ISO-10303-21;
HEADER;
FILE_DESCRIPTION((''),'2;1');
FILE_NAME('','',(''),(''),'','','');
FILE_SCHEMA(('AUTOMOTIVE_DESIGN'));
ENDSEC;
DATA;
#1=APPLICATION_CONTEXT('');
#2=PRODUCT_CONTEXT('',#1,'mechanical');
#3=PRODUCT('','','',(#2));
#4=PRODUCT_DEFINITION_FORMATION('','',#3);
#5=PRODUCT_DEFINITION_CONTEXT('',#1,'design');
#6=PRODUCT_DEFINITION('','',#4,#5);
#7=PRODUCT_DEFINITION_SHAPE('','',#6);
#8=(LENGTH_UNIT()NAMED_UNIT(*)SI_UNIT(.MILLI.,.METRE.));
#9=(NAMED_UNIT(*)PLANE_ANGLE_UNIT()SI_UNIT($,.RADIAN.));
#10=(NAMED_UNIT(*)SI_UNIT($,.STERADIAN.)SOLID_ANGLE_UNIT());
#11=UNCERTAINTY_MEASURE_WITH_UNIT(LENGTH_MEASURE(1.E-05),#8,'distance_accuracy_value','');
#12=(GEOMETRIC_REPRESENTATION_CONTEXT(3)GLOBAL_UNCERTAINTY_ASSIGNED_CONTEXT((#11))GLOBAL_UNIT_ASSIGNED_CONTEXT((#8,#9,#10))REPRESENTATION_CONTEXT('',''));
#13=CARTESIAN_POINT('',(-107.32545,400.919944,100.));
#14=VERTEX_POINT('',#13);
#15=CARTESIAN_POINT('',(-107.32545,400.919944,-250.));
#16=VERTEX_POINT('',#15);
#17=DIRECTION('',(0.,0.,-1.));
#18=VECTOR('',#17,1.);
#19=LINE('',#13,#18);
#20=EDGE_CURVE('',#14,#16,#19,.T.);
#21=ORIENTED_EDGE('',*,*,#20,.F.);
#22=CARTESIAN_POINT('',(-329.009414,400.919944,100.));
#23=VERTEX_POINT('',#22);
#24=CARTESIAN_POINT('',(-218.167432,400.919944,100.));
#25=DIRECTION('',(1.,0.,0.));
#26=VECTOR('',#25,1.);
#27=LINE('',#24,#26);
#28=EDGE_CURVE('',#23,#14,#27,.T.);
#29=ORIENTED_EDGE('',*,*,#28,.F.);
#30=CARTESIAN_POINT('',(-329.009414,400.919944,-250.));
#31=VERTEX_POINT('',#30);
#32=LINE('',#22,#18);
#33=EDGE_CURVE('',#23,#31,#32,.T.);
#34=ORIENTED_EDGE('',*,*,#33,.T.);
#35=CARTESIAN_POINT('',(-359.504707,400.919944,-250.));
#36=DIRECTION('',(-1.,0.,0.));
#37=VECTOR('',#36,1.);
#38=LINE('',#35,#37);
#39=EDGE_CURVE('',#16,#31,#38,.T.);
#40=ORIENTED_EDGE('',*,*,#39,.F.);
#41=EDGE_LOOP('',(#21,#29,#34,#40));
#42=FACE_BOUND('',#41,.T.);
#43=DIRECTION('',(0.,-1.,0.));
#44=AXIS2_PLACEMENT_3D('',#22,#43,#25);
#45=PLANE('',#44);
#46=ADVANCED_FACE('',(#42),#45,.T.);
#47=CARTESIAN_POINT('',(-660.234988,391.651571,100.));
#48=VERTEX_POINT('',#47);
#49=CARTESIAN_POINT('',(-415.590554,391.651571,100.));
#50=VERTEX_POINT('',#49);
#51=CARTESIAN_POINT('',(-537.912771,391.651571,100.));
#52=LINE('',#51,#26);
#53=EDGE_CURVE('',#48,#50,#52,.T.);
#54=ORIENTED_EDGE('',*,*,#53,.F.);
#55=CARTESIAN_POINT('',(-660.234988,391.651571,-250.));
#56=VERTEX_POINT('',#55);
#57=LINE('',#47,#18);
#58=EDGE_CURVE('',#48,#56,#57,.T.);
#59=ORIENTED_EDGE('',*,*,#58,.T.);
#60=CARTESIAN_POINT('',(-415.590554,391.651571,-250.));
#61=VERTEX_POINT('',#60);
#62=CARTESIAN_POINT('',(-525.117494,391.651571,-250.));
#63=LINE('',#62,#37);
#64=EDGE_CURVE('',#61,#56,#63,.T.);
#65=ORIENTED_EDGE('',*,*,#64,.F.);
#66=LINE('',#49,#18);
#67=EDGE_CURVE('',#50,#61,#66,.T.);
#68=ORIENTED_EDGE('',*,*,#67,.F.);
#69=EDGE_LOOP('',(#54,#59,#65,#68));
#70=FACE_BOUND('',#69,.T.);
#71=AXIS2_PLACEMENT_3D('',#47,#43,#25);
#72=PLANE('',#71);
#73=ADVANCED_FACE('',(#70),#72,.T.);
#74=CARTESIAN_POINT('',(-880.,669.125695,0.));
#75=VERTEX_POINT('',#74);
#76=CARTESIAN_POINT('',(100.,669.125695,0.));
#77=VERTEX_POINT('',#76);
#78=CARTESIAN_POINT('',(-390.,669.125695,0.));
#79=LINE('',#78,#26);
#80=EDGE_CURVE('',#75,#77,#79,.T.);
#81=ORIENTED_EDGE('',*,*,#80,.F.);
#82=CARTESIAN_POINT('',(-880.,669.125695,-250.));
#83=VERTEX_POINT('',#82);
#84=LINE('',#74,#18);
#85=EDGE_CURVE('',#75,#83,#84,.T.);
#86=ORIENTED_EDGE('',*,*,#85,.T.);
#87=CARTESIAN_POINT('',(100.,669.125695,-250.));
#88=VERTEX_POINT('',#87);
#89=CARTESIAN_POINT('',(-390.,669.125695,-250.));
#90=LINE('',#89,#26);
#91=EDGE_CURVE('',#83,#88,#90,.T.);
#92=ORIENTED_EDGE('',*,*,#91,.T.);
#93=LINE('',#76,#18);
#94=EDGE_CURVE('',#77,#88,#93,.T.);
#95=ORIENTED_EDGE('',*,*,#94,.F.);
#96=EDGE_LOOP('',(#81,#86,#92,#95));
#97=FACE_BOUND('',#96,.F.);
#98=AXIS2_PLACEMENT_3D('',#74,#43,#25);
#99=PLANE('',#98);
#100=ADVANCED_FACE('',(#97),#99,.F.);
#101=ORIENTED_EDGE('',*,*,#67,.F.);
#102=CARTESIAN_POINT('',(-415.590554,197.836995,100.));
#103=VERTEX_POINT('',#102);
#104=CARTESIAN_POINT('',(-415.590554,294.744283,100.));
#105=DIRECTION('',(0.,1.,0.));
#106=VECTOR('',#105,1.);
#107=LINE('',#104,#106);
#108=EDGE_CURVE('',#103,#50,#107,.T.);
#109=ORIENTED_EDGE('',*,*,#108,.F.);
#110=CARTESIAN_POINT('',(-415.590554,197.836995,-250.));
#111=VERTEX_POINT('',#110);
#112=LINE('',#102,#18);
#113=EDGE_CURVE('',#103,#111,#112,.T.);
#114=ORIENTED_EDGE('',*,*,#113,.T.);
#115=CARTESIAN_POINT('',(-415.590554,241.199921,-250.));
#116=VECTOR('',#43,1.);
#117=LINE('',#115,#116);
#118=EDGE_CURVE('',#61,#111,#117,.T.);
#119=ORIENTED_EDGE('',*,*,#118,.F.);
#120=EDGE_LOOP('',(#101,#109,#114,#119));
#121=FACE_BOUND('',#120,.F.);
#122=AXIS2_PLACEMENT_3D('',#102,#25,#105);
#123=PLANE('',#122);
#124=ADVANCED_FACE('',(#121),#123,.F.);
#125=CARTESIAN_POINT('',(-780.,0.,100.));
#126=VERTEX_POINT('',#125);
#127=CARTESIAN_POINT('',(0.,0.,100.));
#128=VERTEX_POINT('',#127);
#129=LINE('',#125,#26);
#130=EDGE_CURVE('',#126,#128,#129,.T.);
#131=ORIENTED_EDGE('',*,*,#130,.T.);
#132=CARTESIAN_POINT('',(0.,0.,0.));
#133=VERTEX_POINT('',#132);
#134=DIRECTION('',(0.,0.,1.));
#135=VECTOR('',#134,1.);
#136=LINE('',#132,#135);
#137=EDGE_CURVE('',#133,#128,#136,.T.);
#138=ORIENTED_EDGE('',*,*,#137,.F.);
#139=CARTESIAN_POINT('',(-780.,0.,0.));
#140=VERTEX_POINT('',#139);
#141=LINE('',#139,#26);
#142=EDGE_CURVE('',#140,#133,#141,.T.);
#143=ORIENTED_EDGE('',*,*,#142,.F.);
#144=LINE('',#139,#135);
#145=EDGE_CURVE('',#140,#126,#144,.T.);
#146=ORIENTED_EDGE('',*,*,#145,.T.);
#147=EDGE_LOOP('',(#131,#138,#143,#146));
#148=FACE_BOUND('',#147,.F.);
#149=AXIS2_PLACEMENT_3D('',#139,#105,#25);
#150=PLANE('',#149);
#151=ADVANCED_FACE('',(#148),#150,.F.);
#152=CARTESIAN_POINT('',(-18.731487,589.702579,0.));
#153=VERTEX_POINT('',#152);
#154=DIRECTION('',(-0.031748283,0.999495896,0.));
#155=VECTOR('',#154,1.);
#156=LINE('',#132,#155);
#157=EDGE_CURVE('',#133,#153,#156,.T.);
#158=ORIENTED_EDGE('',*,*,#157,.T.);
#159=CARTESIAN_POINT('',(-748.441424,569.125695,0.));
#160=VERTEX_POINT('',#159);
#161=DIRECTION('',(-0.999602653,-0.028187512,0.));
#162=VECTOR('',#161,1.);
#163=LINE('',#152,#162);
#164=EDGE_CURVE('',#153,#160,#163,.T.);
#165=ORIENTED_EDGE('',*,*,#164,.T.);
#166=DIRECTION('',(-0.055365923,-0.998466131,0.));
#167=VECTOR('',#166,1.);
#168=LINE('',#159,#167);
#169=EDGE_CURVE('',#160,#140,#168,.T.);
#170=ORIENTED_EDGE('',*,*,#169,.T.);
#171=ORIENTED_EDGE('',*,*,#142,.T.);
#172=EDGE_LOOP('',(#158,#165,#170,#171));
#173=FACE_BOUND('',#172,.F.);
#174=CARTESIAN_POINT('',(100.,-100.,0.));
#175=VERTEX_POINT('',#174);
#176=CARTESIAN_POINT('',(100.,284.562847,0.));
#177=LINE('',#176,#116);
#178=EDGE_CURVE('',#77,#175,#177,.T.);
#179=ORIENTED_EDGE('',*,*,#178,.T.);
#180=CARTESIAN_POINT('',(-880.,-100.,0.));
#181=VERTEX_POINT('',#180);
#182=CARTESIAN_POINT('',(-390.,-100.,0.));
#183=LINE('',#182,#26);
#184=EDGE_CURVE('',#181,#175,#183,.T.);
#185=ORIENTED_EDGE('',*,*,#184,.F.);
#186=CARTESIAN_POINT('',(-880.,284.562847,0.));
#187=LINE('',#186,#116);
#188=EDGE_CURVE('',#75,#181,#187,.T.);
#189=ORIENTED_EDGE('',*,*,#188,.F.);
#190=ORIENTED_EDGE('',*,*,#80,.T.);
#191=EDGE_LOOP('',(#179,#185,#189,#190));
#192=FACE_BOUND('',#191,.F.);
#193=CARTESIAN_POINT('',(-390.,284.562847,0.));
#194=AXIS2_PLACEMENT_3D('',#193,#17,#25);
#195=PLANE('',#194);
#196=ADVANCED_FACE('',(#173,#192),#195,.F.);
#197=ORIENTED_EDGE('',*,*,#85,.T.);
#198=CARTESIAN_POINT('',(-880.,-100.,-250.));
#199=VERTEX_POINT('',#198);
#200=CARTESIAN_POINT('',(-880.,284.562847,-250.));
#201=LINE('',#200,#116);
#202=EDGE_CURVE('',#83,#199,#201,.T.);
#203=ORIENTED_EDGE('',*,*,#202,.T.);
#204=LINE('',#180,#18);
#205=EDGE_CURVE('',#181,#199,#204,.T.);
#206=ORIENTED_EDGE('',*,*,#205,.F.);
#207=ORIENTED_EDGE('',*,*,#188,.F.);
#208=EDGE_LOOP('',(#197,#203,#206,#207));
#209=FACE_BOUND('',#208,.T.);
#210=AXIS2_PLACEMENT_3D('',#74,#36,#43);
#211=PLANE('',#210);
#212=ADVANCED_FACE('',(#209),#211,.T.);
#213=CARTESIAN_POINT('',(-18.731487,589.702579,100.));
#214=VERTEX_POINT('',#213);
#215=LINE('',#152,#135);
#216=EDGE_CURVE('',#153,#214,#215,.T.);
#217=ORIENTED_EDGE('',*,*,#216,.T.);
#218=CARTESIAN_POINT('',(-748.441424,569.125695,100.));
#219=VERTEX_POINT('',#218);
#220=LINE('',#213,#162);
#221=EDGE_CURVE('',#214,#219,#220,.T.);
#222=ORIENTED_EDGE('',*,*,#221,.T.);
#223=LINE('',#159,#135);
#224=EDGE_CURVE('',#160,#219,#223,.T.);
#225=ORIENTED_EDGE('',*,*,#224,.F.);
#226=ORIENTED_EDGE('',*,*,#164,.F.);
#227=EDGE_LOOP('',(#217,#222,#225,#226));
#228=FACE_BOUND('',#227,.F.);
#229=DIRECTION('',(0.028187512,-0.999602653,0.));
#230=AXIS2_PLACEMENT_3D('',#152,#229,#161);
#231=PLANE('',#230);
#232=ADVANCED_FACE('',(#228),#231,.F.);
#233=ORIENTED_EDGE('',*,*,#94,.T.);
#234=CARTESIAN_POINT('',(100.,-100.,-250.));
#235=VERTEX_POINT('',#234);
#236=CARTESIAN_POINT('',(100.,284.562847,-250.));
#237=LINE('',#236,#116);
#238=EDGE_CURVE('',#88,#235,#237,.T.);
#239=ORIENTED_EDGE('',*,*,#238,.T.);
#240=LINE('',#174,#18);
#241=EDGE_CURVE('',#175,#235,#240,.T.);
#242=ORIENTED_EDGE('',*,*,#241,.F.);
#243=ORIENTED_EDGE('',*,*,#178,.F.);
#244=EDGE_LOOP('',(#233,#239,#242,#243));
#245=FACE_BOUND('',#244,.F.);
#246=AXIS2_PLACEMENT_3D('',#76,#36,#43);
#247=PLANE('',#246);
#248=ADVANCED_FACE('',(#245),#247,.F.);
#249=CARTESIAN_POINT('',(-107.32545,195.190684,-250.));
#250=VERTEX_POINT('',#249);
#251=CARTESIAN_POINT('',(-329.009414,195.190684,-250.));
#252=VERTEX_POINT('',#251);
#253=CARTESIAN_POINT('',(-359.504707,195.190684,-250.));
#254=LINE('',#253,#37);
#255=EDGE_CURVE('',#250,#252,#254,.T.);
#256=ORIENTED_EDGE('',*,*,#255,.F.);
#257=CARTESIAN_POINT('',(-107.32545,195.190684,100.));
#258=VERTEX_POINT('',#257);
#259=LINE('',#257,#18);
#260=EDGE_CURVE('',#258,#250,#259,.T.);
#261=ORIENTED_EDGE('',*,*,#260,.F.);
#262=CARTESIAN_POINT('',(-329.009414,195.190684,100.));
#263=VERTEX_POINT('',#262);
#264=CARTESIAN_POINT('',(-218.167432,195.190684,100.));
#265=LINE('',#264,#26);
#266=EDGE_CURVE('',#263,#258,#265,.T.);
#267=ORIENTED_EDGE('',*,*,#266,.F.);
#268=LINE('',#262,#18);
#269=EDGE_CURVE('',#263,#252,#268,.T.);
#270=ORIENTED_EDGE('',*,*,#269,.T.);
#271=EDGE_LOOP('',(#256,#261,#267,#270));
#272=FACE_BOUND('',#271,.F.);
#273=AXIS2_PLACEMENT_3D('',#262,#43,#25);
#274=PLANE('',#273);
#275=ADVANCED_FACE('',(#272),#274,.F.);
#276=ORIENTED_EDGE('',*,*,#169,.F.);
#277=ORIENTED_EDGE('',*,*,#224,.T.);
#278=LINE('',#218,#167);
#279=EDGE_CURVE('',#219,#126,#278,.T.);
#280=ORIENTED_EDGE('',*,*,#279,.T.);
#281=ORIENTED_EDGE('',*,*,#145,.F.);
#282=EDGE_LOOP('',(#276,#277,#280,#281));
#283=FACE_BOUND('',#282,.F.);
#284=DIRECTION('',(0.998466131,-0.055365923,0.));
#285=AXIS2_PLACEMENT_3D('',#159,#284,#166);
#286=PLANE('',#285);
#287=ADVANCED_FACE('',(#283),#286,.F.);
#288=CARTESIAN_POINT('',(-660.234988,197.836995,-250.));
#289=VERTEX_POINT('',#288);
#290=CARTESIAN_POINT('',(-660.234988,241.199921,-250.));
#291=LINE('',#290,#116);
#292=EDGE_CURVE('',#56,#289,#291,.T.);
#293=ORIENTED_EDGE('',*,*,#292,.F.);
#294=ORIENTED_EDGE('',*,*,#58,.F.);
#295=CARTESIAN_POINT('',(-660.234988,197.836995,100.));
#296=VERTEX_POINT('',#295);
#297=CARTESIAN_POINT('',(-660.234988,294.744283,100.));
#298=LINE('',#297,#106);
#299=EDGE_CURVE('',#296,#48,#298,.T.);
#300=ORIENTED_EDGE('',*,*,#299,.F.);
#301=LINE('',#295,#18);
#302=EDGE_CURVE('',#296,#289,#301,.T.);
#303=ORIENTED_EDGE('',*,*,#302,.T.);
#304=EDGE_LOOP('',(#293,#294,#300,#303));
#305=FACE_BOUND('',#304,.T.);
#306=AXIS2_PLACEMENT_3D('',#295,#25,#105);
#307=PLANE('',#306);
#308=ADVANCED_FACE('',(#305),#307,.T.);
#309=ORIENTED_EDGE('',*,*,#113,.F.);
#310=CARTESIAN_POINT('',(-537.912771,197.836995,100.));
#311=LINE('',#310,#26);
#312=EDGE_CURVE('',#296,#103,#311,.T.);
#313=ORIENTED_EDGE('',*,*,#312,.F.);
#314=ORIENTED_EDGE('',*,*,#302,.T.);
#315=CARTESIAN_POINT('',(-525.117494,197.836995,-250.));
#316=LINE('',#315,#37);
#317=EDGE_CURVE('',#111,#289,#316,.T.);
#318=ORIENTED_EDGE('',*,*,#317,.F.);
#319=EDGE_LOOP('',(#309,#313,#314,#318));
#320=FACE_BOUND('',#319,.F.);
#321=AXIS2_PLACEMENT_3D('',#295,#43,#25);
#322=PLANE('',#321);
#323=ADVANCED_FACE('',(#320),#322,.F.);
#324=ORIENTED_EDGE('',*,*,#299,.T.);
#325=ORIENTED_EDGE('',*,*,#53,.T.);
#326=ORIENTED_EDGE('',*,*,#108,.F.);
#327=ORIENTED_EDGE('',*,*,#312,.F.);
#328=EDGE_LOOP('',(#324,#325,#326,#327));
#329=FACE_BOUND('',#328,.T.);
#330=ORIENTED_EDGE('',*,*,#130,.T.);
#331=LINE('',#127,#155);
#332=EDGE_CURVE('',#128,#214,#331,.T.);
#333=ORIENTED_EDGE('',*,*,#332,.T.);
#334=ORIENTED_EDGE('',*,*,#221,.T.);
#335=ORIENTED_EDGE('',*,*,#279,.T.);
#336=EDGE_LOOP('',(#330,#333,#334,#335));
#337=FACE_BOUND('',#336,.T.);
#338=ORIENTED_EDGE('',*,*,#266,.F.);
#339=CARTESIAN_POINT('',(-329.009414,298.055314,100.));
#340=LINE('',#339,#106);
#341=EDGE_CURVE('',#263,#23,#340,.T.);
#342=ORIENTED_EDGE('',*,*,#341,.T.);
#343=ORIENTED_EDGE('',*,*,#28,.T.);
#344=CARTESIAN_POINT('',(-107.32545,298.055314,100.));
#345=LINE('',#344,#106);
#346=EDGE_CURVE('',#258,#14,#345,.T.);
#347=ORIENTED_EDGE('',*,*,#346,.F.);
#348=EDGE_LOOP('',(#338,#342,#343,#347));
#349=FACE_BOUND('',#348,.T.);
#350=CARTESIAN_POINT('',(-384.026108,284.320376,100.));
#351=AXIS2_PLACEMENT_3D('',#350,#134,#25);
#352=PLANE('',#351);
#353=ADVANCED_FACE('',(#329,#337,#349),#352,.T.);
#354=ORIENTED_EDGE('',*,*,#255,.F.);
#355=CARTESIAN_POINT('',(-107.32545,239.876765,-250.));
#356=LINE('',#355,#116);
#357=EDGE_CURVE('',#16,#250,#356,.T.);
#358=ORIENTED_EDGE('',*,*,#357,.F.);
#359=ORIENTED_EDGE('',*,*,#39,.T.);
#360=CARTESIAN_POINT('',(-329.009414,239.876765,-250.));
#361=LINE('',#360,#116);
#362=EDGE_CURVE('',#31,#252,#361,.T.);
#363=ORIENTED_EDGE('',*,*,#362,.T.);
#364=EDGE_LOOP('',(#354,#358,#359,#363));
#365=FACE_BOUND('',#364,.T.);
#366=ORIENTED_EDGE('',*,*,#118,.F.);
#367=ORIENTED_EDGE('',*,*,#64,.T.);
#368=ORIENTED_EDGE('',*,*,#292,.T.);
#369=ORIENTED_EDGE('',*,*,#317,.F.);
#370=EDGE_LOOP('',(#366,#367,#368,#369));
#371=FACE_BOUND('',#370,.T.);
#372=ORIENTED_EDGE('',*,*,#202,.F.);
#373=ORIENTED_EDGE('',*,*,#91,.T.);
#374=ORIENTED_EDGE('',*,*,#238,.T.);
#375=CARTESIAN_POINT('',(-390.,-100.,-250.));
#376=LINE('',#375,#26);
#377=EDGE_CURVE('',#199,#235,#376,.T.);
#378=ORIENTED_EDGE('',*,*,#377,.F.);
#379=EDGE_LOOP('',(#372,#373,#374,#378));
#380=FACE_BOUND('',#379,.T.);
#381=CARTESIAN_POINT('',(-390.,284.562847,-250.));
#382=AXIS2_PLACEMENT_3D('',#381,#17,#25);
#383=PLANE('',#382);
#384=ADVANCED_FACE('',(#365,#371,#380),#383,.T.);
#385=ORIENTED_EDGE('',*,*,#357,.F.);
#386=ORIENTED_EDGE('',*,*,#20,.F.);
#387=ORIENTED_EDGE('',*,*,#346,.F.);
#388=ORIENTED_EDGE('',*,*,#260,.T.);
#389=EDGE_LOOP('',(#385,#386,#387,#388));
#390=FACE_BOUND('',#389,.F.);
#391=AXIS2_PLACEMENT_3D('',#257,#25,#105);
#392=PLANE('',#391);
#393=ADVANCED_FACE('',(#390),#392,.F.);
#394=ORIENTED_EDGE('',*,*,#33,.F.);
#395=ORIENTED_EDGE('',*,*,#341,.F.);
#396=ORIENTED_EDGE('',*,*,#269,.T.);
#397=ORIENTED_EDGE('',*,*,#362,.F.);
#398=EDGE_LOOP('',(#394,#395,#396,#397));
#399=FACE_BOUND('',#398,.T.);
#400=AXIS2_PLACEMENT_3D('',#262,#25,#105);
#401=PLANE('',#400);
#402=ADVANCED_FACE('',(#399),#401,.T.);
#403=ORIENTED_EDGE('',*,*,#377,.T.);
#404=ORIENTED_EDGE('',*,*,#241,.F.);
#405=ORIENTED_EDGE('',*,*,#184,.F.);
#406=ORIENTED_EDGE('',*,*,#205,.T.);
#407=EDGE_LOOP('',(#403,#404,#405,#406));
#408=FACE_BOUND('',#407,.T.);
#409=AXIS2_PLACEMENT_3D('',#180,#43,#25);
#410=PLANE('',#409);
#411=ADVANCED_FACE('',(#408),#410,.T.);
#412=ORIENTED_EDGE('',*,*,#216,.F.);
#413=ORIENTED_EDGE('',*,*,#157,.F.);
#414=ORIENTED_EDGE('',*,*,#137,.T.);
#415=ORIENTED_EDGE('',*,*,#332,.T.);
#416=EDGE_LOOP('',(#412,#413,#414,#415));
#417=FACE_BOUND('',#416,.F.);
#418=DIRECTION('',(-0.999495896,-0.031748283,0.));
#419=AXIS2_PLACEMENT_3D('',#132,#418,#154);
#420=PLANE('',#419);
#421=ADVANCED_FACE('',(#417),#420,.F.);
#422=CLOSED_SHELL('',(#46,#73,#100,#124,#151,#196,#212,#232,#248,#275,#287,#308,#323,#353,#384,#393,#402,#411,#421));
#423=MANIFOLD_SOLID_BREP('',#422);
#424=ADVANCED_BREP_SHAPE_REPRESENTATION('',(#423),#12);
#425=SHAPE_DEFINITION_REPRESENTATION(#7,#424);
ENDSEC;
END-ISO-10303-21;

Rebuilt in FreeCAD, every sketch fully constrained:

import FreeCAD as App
import Part
import Sketcher
Q = App.Units.Quantity

doc = App.newDocument("Part")
body = doc.addObject("PartDesign::Body", "Body")

sketch1 = body.newObject("Sketcher::SketchObject", "Sketch")
sketch1.AttachmentSupport = (doc.getObject("XY_Plane"), [""])
sketch1.MapMode = "FlatFace"
sketch1.addGeometry(Part.LineSegment(App.Vector(-780, 0, 0), App.Vector(0, 0, 0)), False)
sketch1.addGeometry(Part.LineSegment(App.Vector(0, 0, 0), App.Vector(-19, 590, 0)), False)
sketch1.addGeometry(Part.LineSegment(App.Vector(-19, 590, 0), App.Vector(-748, 569, 0)), False)
sketch1.addGeometry(Part.LineSegment(App.Vector(-748, 569, 0), App.Vector(-780, 0, 0)), False)
sketch1.addConstraint(Sketcher.Constraint("Coincident", 0, 2, 1, 1))
sketch1.addConstraint(Sketcher.Constraint("Coincident", 1, 2, 2, 1))
sketch1.addConstraint(Sketcher.Constraint("Coincident", 2, 2, 3, 1))
sketch1.addConstraint(Sketcher.Constraint("Coincident", 3, 2, 0, 1))
sketch1.addConstraint(Sketcher.Constraint("Horizontal", 0))
sketch1.addConstraint(Sketcher.Constraint("Coincident", 0, 2, -1, 1))
sketch1.addConstraint(Sketcher.Constraint("DistanceX", 0, 1, 0, 2, Q("780 mm")))
sketch1.addConstraint(Sketcher.Constraint("Distance", 1, Q("590 mm")))
sketch1.addConstraint(Sketcher.Constraint("Distance", 2, Q("730 mm")))
sketch1.addConstraint(Sketcher.Constraint("Distance", 3, Q("570 mm")))
sketch1.addConstraint(Sketcher.Constraint("DistanceY", -1, 1, 1, 2, Q("589.702579 mm")))
pad1 = body.newObject("PartDesign::Pad", "Pad")
pad1.Profile = sketch1
pad1.Length = 100

sketch2 = body.newObject("Sketcher::SketchObject", "Sketch001")
sketch2.AttachmentSupport = (doc.getObject("XY_Plane"), [""])
sketch2.MapMode = "FlatFace"
sketch2.addGeometry(Part.LineSegment(App.Vector(-880, -100, 0), App.Vector(-880, 669, 0)), False)
sketch2.addGeometry(Part.LineSegment(App.Vector(-880, 669, 0), App.Vector(100, 669, 0)), False)
sketch2.addGeometry(Part.LineSegment(App.Vector(100, 669, 0), App.Vector(100, -100, 0)), False)
sketch2.addGeometry(Part.LineSegment(App.Vector(100, -100, 0), App.Vector(-880, -100, 0)), False)
sketch2.addConstraint(Sketcher.Constraint("Coincident", 0, 2, 1, 1))
sketch2.addConstraint(Sketcher.Constraint("Coincident", 1, 2, 2, 1))
sketch2.addConstraint(Sketcher.Constraint("Coincident", 2, 2, 3, 1))
sketch2.addConstraint(Sketcher.Constraint("Coincident", 3, 2, 0, 1))
sketch2.addConstraint(Sketcher.Constraint("Vertical", 0))
sketch2.addConstraint(Sketcher.Constraint("Horizontal", 1))
sketch2.addConstraint(Sketcher.Constraint("Vertical", 2))
sketch2.addConstraint(Sketcher.Constraint("Horizontal", 3))
sketch2.addConstraint(Sketcher.Constraint("DistanceX", 1, 1, 1, 2, Q("980 mm")))
sketch2.addConstraint(Sketcher.Constraint("DistanceX", 0, 2, -1, 1, Q("880 mm")))
sketch2.addConstraint(Sketcher.Constraint("DistanceY", 2, 2, -1, 1, Q("100 mm")))
sketch2.addConstraint(Sketcher.Constraint("DistanceY", 0, 1, 0, 2, Q("769.125695 mm")))
pad2 = body.newObject("PartDesign::Pad", "Pad001")
pad2.Profile = sketch2
pad2.Length = 250
pad2.Reversed = True

sketch3 = body.newObject("Sketcher::SketchObject", "Sketch002")
sketch3.AttachmentSupport = (doc.getObject("XY_Plane"), [""])
sketch3.MapMode = "FlatFace"
sketch3.AttachmentOffset = App.Placement(App.Vector(0, 0, 100), App.Rotation())
sketch3.addGeometry(Part.LineSegment(App.Vector(-660, 392, 0), App.Vector(-660, 198, 0)), False)
sketch3.addGeometry(Part.LineSegment(App.Vector(-660, 198, 0), App.Vector(-416, 198, 0)), False)
sketch3.addGeometry(Part.LineSegment(App.Vector(-416, 198, 0), App.Vector(-416, 392, 0)), False)
sketch3.addGeometry(Part.LineSegment(App.Vector(-416, 392, 0), App.Vector(-660, 392, 0)), False)
sketch3.addGeometry(Part.LineSegment(App.Vector(-329, 401, 0), App.Vector(-329, 195, 0)), False)
sketch3.addGeometry(Part.LineSegment(App.Vector(-329, 195, 0), App.Vector(-107, 195, 0)), False)
sketch3.addGeometry(Part.LineSegment(App.Vector(-107, 195, 0), App.Vector(-107, 401, 0)), False)
sketch3.addGeometry(Part.LineSegment(App.Vector(-107, 401, 0), App.Vector(-329, 401, 0)), False)
sketch3.addConstraint(Sketcher.Constraint("Coincident", 0, 2, 1, 1))
sketch3.addConstraint(Sketcher.Constraint("Coincident", 1, 2, 2, 1))
sketch3.addConstraint(Sketcher.Constraint("Coincident", 2, 2, 3, 1))
sketch3.addConstraint(Sketcher.Constraint("Coincident", 3, 2, 0, 1))
sketch3.addConstraint(Sketcher.Constraint("Coincident", 4, 2, 5, 1))
sketch3.addConstraint(Sketcher.Constraint("Coincident", 5, 2, 6, 1))
sketch3.addConstraint(Sketcher.Constraint("Coincident", 6, 2, 7, 1))
sketch3.addConstraint(Sketcher.Constraint("Coincident", 7, 2, 4, 1))
sketch3.addConstraint(Sketcher.Constraint("Vertical", 0))
sketch3.addConstraint(Sketcher.Constraint("Horizontal", 1))
sketch3.addConstraint(Sketcher.Constraint("Vertical", 2))
sketch3.addConstraint(Sketcher.Constraint("Horizontal", 3))
sketch3.addConstraint(Sketcher.Constraint("Vertical", 4))
sketch3.addConstraint(Sketcher.Constraint("Horizontal", 5))
sketch3.addConstraint(Sketcher.Constraint("Vertical", 6))
sketch3.addConstraint(Sketcher.Constraint("Horizontal", 7))
sketch3.addConstraint(Sketcher.Constraint("DistanceY", 4, 2, 4, 1, Q("205.729261 mm")))
sketch3.addConstraint(Sketcher.Constraint("DistanceX", 1, 1, 1, 2, Q("244.644434 mm")))
sketch3.addConstraint(Sketcher.Constraint("DistanceX", 5, 1, 5, 2, Q("221.683964 mm")))
sketch3.addConstraint(Sketcher.Constraint("DistanceY", 0, 2, 0, 1, Q("193.814576 mm")))
sketch3.addConstraint(Sketcher.Constraint("DistanceX", 0, 2, -1, 1, Q("660.234988 mm")))
sketch3.addConstraint(Sketcher.Constraint("DistanceY", -1, 1, 2, 2, Q("391.651571 mm")))
sketch3.addConstraint(Sketcher.Constraint("DistanceX", 5, 2, -1, 1, Q("107.32545 mm")))
sketch3.addConstraint(Sketcher.Constraint("DistanceY", 4, 2, 1, 2, Q("2.646311 mm")))
pocket1 = body.newObject("PartDesign::Pocket", "Pocket")
pocket1.Profile = sketch3
pocket1.Length = 600

doc.recompute()
